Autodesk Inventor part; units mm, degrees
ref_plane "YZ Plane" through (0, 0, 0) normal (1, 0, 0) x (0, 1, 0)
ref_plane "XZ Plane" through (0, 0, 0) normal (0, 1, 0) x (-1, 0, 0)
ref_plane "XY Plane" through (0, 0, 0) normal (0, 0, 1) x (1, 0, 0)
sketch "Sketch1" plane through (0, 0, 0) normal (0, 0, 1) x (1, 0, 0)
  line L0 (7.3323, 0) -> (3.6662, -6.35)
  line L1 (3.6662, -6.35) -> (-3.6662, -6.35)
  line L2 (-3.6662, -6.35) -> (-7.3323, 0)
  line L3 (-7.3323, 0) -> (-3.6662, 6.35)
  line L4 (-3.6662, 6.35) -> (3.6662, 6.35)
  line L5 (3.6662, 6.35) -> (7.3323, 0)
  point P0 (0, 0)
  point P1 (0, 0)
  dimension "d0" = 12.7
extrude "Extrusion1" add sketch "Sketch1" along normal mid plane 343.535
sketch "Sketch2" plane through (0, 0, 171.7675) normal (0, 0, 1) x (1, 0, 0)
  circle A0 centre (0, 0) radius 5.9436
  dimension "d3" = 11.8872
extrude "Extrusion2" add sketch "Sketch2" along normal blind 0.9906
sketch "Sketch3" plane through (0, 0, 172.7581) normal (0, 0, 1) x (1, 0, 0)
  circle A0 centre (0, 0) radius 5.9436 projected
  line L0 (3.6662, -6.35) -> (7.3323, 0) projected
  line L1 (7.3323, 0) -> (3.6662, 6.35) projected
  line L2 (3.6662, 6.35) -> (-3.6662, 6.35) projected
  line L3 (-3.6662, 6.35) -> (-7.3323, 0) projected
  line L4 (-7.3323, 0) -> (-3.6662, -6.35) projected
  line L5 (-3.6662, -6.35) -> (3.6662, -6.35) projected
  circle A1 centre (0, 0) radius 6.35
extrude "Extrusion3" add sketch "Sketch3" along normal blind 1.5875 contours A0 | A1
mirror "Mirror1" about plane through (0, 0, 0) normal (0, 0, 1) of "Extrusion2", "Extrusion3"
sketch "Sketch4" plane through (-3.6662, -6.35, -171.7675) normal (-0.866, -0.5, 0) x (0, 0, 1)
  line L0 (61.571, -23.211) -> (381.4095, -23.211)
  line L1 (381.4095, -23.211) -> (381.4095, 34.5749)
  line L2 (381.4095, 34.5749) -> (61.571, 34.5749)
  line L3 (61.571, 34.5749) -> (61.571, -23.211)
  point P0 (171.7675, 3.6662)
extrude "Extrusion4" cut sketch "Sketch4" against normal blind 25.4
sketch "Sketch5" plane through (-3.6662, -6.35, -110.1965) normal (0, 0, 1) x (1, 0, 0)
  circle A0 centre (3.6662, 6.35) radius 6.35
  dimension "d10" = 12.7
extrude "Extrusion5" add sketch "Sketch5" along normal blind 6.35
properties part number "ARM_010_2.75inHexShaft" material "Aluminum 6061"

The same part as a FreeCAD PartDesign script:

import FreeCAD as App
import Part
import Sketcher
from FreeCAD import Vector
Q = App.Units.Quantity


def add_polygon(sketch, points):
    """Adds a closed chain of lines whose ends are joined by coincident constraints."""
    first, n = sketch.GeometryCount, len(points)
    for a, b in zip(points, points[1:] + points[:1]):
        sketch.addGeometry(Part.LineSegment(App.Vector(*a, 0), App.Vector(*b, 0)), False)
    for i in range(n):
        sketch.addConstraint(Sketcher.Constraint("Coincident", first + i, 2, first + (i + 1) % n, 1))

doc = App.newDocument("Part")
params = doc.addObject("Spreadsheet::Sheet", "Params")
for row, (alias, value) in enumerate([
    ("pad1_length", "13.525 in"),
    ("sketch2_diameter", "0.468 in"),
    ("pad2_length", "0.039 in"),
    ("sketch3_diameter", "0.5 in"),
    ("pad3_length", "0.0625 in"),
    ("pocket1_length", "1 in"),
    ("sketch5_diameter", "0.5 in"),
    ("pad4_length", "0.25 in"),
], start=1):
    params.set(f"A{row}", alias)
    params.set(f"B{row}", "=" + value)
    params.setAlias(f"B{row}", alias)

body = doc.addObject("PartDesign::Body", "Body")

sketch1 = doc.addObject("Sketcher::SketchObject", "Sketch")
body.addObject(sketch1)
sketch1.AttachmentSupport = (doc.XY_Plane, [""])
sketch1.MapMode = "FlatFace"
add_polygon(sketch1, [(4, -6), (7, 0), (4, 6), (-4, 6), (-7, 0), (-4, -6)])
sketch1.addConstraint(Sketcher.Constraint("Horizontal", 2))
sketch1.addConstraint(Sketcher.Constraint("Horizontal", 5))
sketch1.addConstraint(Sketcher.Constraint("Symmetric", 0, 2, 3, 2, -1, 1))
sketch1.addConstraint(Sketcher.Constraint("Symmetric", 1, 2, 4, 2, -1, 1))
sketch1.addConstraint(Sketcher.Constraint("PointOnObject", 0, 2, -1))
sketch1.addConstraint(Sketcher.Constraint("Parallel", 0, 3))
sketch1.addConstraint(Sketcher.Constraint("Vertical", 2, 2, 4, 2))
sketch1.addConstraint(Sketcher.Constraint("DistanceY", 4, 2, 2, 2, Q("0.5 in")))
sketch1.addConstraint(Sketcher.Constraint("Angle", 0, Q("60.0005 deg")))
sketch1.addConstraint(Sketcher.Constraint("DistanceX", 2, 2, 0, 2, Q("0.433 in")))
pad1 = doc.addObject("PartDesign::Pad", "Pad")
body.addObject(pad1)
pad1.Profile = sketch1
pad1.setExpression("Length", "Params.pad1_length")
pad1.Midplane = True

sketch2 = doc.addObject("Sketcher::SketchObject", "Sketch001")
body.addObject(sketch2)
sketch2.AttachmentSupport = (doc.XY_Plane, [""])
sketch2.MapMode = "FlatFace"
sketch2.AttachmentOffset = App.Placement(Vector(0, 0, 6.7625 * 25.4), App.Rotation())
sketch2.addGeometry(Part.Circle(Vector(0, 0, 0), Vector(0, 0, 1), 6), False)
sketch2.addConstraint(Sketcher.Constraint("Coincident", 0, 3, -1, 1))
sketch2.addConstraint(Sketcher.Constraint("Diameter", 0, Q("0.468 in")))
sketch2.setExpression("Constraints[1]", "Params.sketch2_diameter")
pad2 = doc.addObject("PartDesign::Pad", "Pad001")
body.addObject(pad2)
pad2.Profile = sketch2
pad2.setExpression("Length", "Params.pad2_length")

sketch3 = doc.addObject("Sketcher::SketchObject", "Sketch002")
body.addObject(sketch3)
sketch3.AttachmentSupport = (doc.XY_Plane, [""])
sketch3.MapMode = "FlatFace"
sketch3.AttachmentOffset = App.Placement(Vector(0, 0, 6.8015 * 25.4), App.Rotation())
sketch3.addGeometry(Part.Circle(Vector(0, 0, 0), Vector(0, 0, 1), 6), False)
sketch3.addConstraint(Sketcher.Constraint("Coincident", 0, 3, -1, 1))
sketch3.addConstraint(Sketcher.Constraint("Diameter", 0, Q("0.5 in")))
sketch3.setExpression("Constraints[1]", "Params.sketch3_diameter")
pad3 = doc.addObject("PartDesign::Pad", "Pad002")
body.addObject(pad3)
pad3.Profile = sketch3
pad3.setExpression("Length", "Params.pad3_length")
doc.recompute()

mirrored = doc.addObject("PartDesign::Mirrored", "Mirrored")
body.addObject(mirrored)
mirrored.Originals = [pad2, pad3]
mirrored.MirrorPlane = (doc.XY_Plane, [""])
body.Tip = mirrored

sketch4 = doc.addObject("Sketcher::SketchObject", "Sketch003")
body.addObject(sketch4)
sketch4.Placement = App.Placement(Vector(-3.6662, -6.35, -171.7675), App.Rotation(Vector(0, 0, 1), Vector(-0.5, 0.866025404, 0), Vector(-0.866025404, -0.5, 0), "ZXY"))
add_polygon(sketch4, [(62, 35), (62, -23), (381, -23), (381, 35)])
sketch4.addConstraint(Sketcher.Constraint("Vertical", 0))
sketch4.addConstraint(Sketcher.Constraint("Horizontal", 1))
sketch4.addConstraint(Sketcher.Constraint("Vertical", 2))
sketch4.addConstraint(Sketcher.Constraint("Horizontal", 3))
sketch4.addConstraint(Sketcher.Constraint("DistanceX", 1, 1, 1, 2, 319.8385))
sketch4.addConstraint(Sketcher.Constraint("DistanceY", 0, 2, 0, 1, 57.786))
sketch4.addConstraint(Sketcher.Constraint("DistanceX", -1, 1, 0, 2, 61.571))
sketch4.addConstraint(Sketcher.Constraint("DistanceY", 0, 2, -1, 1, 23.211))
pocket1 = doc.addObject("PartDesign::Pocket", "Pocket")
body.addObject(pocket1)
pocket1.Profile = sketch4
pocket1.setExpression("Length", "Params.pocket1_length")

sketch5 = doc.addObject("Sketcher::SketchObject", "Sketch004")
body.addObject(sketch5)
sketch5.AttachmentSupport = (doc.XY_Plane, [""])
sketch5.MapMode = "FlatFace"
sketch5.AttachmentOffset = App.Placement(Vector(0, 0, -110.1965), App.Rotation())
sketch5.addGeometry(Part.Circle(Vector(0, 0, 0), Vector(0, 0, 1), 6), False)
sketch5.addConstraint(Sketcher.Constraint("Coincident", 0, 3, -1, 1))
sketch5.addConstraint(Sketcher.Constraint("Diameter", 0, Q("0.5 in")))
sketch5.setExpression("Constraints[1]", "Params.sketch5_diameter")
pad4 = doc.addObject("PartDesign::Pad", "Pad003")
body.addObject(pad4)
pad4.Profile = sketch5
pad4.setExpression("Length", "Params.pad4_length")

doc.recompute()
